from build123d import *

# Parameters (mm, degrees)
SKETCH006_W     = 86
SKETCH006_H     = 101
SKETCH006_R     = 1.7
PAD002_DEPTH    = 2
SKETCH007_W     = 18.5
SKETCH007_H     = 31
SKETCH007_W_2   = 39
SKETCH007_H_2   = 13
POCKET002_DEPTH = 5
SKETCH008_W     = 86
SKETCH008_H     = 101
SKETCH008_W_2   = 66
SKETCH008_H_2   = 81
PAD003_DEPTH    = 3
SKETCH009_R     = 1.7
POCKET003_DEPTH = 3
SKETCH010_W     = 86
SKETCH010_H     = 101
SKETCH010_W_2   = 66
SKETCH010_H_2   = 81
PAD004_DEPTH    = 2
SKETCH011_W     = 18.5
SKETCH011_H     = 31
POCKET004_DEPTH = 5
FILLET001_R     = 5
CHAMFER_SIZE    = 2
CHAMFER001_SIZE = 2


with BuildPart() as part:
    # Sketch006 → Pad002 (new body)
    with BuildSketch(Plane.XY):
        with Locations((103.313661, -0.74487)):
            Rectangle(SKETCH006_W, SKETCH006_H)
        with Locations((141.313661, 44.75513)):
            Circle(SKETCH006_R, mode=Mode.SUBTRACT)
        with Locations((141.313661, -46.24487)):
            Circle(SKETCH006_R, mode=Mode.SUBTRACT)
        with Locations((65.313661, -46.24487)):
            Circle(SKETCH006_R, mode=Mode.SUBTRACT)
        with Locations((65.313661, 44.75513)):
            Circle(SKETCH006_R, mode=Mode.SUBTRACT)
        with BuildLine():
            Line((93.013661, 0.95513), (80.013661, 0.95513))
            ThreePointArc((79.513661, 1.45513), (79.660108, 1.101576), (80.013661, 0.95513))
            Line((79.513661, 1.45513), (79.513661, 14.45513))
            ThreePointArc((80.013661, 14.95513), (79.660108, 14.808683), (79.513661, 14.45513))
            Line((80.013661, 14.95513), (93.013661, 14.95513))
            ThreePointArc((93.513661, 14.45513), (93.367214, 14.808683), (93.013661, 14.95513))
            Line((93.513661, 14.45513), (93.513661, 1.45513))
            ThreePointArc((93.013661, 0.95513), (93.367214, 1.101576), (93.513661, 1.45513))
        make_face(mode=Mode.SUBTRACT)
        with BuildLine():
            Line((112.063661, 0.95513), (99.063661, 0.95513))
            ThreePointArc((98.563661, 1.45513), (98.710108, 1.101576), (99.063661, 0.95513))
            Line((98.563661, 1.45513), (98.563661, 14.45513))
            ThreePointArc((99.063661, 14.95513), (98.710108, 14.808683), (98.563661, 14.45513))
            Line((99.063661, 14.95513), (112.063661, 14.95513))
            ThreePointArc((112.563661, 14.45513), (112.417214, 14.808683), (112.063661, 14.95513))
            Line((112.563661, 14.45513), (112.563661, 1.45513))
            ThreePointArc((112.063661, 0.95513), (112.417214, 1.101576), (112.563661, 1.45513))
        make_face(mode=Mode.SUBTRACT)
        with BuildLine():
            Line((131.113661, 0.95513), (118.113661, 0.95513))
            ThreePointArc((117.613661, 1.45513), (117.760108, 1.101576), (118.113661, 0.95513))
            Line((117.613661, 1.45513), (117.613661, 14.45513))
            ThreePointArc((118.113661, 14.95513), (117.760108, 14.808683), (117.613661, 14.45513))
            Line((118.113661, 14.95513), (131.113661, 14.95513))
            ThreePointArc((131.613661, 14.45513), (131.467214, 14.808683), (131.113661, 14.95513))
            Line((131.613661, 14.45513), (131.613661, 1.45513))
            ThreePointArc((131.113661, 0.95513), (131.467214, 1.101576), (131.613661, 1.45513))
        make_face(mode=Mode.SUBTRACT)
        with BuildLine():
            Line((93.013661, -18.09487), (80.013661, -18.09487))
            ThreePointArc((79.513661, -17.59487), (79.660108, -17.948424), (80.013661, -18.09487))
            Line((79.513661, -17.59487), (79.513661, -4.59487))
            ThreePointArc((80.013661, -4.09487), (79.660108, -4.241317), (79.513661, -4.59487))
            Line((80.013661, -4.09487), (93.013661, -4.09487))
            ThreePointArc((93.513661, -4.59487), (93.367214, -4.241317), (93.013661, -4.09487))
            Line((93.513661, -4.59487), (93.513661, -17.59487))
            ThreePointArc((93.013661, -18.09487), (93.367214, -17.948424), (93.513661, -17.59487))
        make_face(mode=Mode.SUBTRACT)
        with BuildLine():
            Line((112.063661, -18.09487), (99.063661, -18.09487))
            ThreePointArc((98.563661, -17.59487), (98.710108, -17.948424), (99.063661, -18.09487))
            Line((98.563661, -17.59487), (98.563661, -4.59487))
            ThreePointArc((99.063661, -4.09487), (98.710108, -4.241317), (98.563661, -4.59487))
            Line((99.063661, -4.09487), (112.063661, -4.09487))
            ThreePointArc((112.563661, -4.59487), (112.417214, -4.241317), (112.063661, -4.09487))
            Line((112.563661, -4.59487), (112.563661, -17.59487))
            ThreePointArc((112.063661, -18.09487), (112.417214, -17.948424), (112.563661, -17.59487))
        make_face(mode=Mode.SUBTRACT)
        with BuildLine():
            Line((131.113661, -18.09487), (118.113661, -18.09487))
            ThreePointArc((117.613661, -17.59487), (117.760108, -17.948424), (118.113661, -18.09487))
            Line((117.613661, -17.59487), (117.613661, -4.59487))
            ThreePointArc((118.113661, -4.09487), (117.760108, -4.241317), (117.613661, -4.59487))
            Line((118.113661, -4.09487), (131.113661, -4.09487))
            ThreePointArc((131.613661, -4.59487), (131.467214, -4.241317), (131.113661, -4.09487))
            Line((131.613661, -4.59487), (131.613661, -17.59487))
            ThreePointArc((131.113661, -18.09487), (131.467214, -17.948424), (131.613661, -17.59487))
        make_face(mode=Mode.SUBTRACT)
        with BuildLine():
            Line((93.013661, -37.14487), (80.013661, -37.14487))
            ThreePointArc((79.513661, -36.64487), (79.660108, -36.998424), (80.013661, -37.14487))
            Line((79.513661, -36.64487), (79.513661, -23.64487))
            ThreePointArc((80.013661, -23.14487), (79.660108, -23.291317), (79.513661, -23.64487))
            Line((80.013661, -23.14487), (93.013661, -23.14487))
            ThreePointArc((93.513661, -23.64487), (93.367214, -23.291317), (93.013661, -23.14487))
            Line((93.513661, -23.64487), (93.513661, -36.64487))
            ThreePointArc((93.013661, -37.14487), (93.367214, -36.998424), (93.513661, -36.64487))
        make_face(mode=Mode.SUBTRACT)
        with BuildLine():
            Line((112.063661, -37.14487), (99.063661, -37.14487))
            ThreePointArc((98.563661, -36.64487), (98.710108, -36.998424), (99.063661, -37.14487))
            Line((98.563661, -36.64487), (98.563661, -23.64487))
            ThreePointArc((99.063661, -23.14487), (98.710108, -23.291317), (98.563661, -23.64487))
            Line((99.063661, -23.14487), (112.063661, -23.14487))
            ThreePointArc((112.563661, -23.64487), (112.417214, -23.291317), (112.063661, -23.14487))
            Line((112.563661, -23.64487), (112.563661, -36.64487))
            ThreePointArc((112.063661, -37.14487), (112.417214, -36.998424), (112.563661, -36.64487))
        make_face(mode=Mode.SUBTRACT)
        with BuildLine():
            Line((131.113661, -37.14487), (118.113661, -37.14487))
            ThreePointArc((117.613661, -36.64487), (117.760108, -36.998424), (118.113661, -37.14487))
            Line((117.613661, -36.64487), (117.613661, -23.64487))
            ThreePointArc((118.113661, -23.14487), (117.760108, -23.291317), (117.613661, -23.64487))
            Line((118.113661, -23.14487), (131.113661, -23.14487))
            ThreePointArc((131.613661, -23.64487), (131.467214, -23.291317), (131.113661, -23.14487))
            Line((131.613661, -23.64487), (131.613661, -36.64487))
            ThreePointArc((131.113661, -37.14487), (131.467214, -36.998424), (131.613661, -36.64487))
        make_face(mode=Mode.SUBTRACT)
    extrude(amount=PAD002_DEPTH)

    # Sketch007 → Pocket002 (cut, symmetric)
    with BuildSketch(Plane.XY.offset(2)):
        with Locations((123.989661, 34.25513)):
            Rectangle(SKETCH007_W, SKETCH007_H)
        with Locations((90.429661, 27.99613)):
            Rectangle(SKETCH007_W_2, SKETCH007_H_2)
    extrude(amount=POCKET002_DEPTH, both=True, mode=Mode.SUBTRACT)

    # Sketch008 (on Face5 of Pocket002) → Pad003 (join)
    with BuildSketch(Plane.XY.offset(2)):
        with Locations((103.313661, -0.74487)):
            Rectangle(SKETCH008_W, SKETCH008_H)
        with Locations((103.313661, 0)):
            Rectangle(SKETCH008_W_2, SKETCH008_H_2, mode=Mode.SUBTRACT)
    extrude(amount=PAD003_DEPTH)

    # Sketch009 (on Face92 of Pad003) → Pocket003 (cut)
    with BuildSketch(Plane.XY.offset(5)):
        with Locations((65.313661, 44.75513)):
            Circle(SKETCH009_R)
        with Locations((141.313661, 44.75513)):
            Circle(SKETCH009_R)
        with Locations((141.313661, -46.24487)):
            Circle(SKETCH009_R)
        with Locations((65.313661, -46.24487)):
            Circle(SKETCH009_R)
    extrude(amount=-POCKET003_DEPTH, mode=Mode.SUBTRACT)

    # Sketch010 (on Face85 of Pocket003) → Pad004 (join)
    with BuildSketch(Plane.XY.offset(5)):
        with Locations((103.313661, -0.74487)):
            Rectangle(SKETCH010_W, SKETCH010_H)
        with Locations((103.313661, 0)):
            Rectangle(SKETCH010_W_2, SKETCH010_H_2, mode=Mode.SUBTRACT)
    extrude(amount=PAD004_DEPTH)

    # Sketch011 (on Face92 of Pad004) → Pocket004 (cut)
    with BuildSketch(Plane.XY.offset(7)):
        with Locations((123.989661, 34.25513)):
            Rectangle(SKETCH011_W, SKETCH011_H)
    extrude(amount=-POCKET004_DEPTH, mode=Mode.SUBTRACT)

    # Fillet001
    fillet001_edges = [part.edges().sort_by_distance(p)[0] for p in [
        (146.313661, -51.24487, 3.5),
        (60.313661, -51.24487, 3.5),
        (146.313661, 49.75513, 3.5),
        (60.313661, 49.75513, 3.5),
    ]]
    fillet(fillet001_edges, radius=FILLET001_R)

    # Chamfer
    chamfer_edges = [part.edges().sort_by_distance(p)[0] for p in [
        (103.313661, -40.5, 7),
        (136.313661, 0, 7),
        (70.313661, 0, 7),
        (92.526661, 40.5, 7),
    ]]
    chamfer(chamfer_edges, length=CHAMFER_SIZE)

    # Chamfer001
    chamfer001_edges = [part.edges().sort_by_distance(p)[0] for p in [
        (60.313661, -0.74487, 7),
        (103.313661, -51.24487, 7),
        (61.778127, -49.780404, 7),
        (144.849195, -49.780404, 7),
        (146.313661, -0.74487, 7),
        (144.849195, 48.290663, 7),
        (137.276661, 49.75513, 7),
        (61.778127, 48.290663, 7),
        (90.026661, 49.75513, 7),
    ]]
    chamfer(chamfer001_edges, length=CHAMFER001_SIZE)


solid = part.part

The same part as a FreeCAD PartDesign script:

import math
import FreeCAD as App
import Part
import Sketcher
Q = App.Units.Quantity


def edges_at(feature, points):
    """Names of the edges that pass closest to the given points."""
    edges = feature.Shape.Edges
    near = lambda p: min(range(len(edges)), key=lambda i: edges[i].distToShape(Part.Vertex(*p))[0])
    return sorted({f"Edge{near(p) + 1}" for p in points})

doc = App.newDocument("Part")
body = doc.addObject("PartDesign::Body", "Body")

# Sketch on XY plane
sketch1 = doc.addObject("Sketcher::SketchObject", "Sketch")
body.addObject(sketch1)
sketch1.AttachmentSupport = (doc.XY_Plane, [""])
sketch1.MapMode = "FlatFace"
sketch1.addGeometry([
    Part.LineSegment(App.Vector(60.31, 49.76, 0), App.Vector(60.31, -51.24, 0)),  # 0
    Part.LineSegment(App.Vector(60.31, -51.24, 0), App.Vector(146.31, -51.24, 0)),  # 1
    Part.LineSegment(App.Vector(146.31, -51.24, 0), App.Vector(146.31, 49.76, 0)),  # 2
    Part.LineSegment(App.Vector(146.31, 49.76, 0), App.Vector(60.31, 49.76, 0)),  # 3
    Part.Circle(App.Vector(65.31, -46.24, 0), App.Vector(0, 0, 1), 1.7),  # 4
    Part.ArcOfCircle(Part.Circle(App.Vector(93.01, -36.64, 0), App.Vector(0, 0, 1), 0.5), math.radians(-90), math.radians(0)),  # 5
    Part.LineSegment(App.Vector(93.01, -37.14, 0), App.Vector(80.01, -37.14, 0)),  # 6
    Part.ArcOfCircle(Part.Circle(App.Vector(80.01, -36.64, 0), App.Vector(0, 0, 1), 0.5), math.radians(180), math.radians(270)),  # 7
    Part.LineSegment(App.Vector(79.51, -36.64, 0), App.Vector(79.51, -23.64, 0)),  # 8
    Part.ArcOfCircle(Part.Circle(App.Vector(80.01, -23.64, 0), App.Vector(0, 0, 1), 0.5), math.radians(90), math.radians(180)),  # 9
    Part.LineSegment(App.Vector(80.01, -23.14, 0), App.Vector(93.01, -23.14, 0)),  # 10
    Part.ArcOfCircle(Part.Circle(App.Vector(93.01, -23.64, 0), App.Vector(0, 0, 1), 0.5), math.radians(0), math.radians(90)),  # 11
    Part.LineSegment(App.Vector(93.51, -23.64, 0), App.Vector(93.51, -36.64, 0)),  # 12
    Part.ArcOfCircle(Part.Circle(App.Vector(93.01, -17.59, 0), App.Vector(0, 0, 1), 0.5), math.radians(-90), math.radians(0)),  # 13
    Part.LineSegment(App.Vector(93.01, -18.09, 0), App.Vector(80.01, -18.09, 0)),  # 14
    Part.ArcOfCircle(Part.Circle(App.Vector(80.01, -17.59, 0), App.Vector(0, 0, 1), 0.5), math.radians(180), math.radians(270)),  # 15
    Part.LineSegment(App.Vector(79.51, -17.59, 0), App.Vector(79.51, -4.59, 0)),  # 16
    Part.ArcOfCircle(Part.Circle(App.Vector(80.01, -4.59, 0), App.Vector(0, 0, 1), 0.5), math.radians(90), math.radians(180)),  # 17
    Part.LineSegment(App.Vector(80.01, -4.09, 0), App.Vector(93.01, -4.09, 0)),  # 18
    Part.ArcOfCircle(Part.Circle(App.Vector(93.01, -4.59, 0), App.Vector(0, 0, 1), 0.5), math.radians(0), math.radians(90)),  # 19
    Part.LineSegment(App.Vector(93.51, -4.59, 0), App.Vector(93.51, -17.59, 0)),  # 20
    Part.ArcOfCircle(Part.Circle(App.Vector(112.06, -36.64, 0), App.Vector(0, 0, 1), 0.5), math.radians(-90), math.radians(0)),  # 21
    Part.LineSegment(App.Vector(112.06, -37.14, 0), App.Vector(99.06, -37.14, 0)),  # 22
    Part.ArcOfCircle(Part.Circle(App.Vector(99.06, -36.64, 0), App.Vector(0, 0, 1), 0.5), math.radians(180), math.radians(270)),  # 23
    Part.LineSegment(App.Vector(98.56, -36.64, 0), App.Vector(98.56, -23.64, 0)),  # 24
    Part.ArcOfCircle(Part.Circle(App.Vector(99.06, -23.64, 0), App.Vector(0, 0, 1), 0.5), math.radians(90), math.radians(180)),  # 25
    Part.LineSegment(App.Vector(99.06, -23.14, 0), App.Vector(112.06, -23.14, 0)),  # 26
    Part.ArcOfCircle(Part.Circle(App.Vector(112.06, -23.64, 0), App.Vector(0, 0, 1), 0.5), math.radians(0), math.radians(90)),  # 27
    Part.LineSegment(App.Vector(112.56, -23.64, 0), App.Vector(112.56, -36.64, 0)),  # 28
    Part.Circle(App.Vector(141.31, -46.24, 0), App.Vector(0, 0, 1), 1.7),  # 29
    Part.ArcOfCircle(Part.Circle(App.Vector(131.11, -36.64, 0), App.Vector(0, 0, 1), 0.5), math.radians(-90), math.radians(0)),  # 30
    Part.LineSegment(App.Vector(131.11, -37.14, 0), App.Vector(118.11, -37.14, 0)),  # 31
    Part.ArcOfCircle(Part.Circle(App.Vector(118.11, -36.64, 0), App.Vector(0, 0, 1), 0.5), math.radians(180), math.radians(270)),  # 32
    Part.LineSegment(App.Vector(117.61, -36.64, 0), App.Vector(117.61, -23.64, 0)),  # 33
    Part.ArcOfCircle(Part.Circle(App.Vector(118.11, -23.64, 0), App.Vector(0, 0, 1), 0.5), math.radians(90), math.radians(180)),  # 34
    Part.LineSegment(App.Vector(118.11, -23.14, 0), App.Vector(131.11, -23.14, 0)),  # 35
    Part.ArcOfCircle(Part.Circle(App.Vector(131.11, -23.64, 0), App.Vector(0, 0, 1), 0.5), math.radians(0), math.radians(90)),  # 36
    Part.LineSegment(App.Vector(131.61, -23.64, 0), App.Vector(131.61, -36.64, 0)),  # 37
    Part.ArcOfCircle(Part.Circle(App.Vector(112.06, -17.59, 0), App.Vector(0, 0, 1), 0.5), math.radians(-90), math.radians(0)),  # 38
    Part.LineSegment(App.Vector(112.06, -18.09, 0), App.Vector(99.06, -18.09, 0)),  # 39
    Part.ArcOfCircle(Part.Circle(App.Vector(99.06, -17.59, 0), App.Vector(0, 0, 1), 0.5), math.radians(180), math.radians(270)),  # 40
    Part.LineSegment(App.Vector(98.56, -17.59, 0), App.Vector(98.56, -4.59, 0)),  # 41
    Part.ArcOfCircle(Part.Circle(App.Vector(99.06, -4.59, 0), App.Vector(0, 0, 1), 0.5), math.radians(90), math.radians(180)),  # 42
    Part.LineSegment(App.Vector(99.06, -4.09, 0), App.Vector(112.06, -4.09, 0)),  # 43
    Part.ArcOfCircle(Part.Circle(App.Vector(112.06, -4.59, 0), App.Vector(0, 0, 1), 0.5), math.radians(0), math.radians(90)),  # 44
    Part.LineSegment(App.Vector(112.56, -4.59, 0), App.Vector(112.56, -17.59, 0)),  # 45
    Part.ArcOfCircle(Part.Circle(App.Vector(131.11, -17.59, 0), App.Vector(0, 0, 1), 0.5), math.radians(-90), math.radians(0)),  # 46
    Part.LineSegment(App.Vector(131.11, -18.09, 0), App.Vector(118.11, -18.09, 0)),  # 47
    Part.ArcOfCircle(Part.Circle(App.Vector(118.11, -17.59, 0), App.Vector(0, 0, 1), 0.5), math.radians(180), math.radians(270)),  # 48
    Part.LineSegment(App.Vector(117.61, -17.59, 0), App.Vector(117.61, -4.59, 0)),  # 49
    Part.ArcOfCircle(Part.Circle(App.Vector(118.11, -4.59, 0), App.Vector(0, 0, 1), 0.5), math.radians(90), math.radians(180)),  # 50
    Part.LineSegment(App.Vector(118.11, -4.09, 0), App.Vector(131.11, -4.09, 0)),  # 51
    Part.ArcOfCircle(Part.Circle(App.Vector(131.11, -4.59, 0), App.Vector(0, 0, 1), 0.5), math.radians(0), math.radians(90)),  # 52
    Part.LineSegment(App.Vector(131.61, -4.59, 0), App.Vector(131.61, -17.59, 0)),  # 53
    Part.ArcOfCircle(Part.Circle(App.Vector(93.01, 1.46, 0), App.Vector(0, 0, 1), 0.5), math.radians(-90), math.radians(0)),  # 54
    Part.LineSegment(App.Vector(93.01, 0.96, 0), App.Vector(80.01, 0.96, 0)),  # 55
    Part.ArcOfCircle(Part.Circle(App.Vector(80.01, 1.46, 0), App.Vector(0, 0, 1), 0.5), math.radians(180), math.radians(270)),  # 56
    Part.LineSegment(App.Vector(79.51, 1.46, 0), App.Vector(79.51, 14.46, 0)),  # 57
    Part.ArcOfCircle(Part.Circle(App.Vector(80.01, 14.46, 0), App.Vector(0, 0, 1), 0.5), math.radians(90), math.radians(180)),  # 58
    Part.LineSegment(App.Vector(80.01, 14.96, 0), App.Vector(93.01, 14.96, 0)),  # 59
    Part.ArcOfCircle(Part.Circle(App.Vector(93.01, 14.46, 0), App.Vector(0, 0, 1), 0.5), math.radians(0), math.radians(90)),  # 60
    Part.LineSegment(App.Vector(93.51, 14.46, 0), App.Vector(93.51, 1.46, 0)),  # 61
    Part.Circle(App.Vector(65.31, 44.76, 0), App.Vector(0, 0, 1), 1.7),  # 62
    Part.ArcOfCircle(Part.Circle(App.Vector(112.06, 1.46, 0), App.Vector(0, 0, 1), 0.5), math.radians(-90), math.radians(0)),  # 63
    Part.LineSegment(App.Vector(112.06, 0.96, 0), App.Vector(99.06, 0.96, 0)),  # 64
    Part.ArcOfCircle(Part.Circle(App.Vector(99.06, 1.46, 0), App.Vector(0, 0, 1), 0.5), math.radians(180), math.radians(270)),  # 65
    Part.LineSegment(App.Vector(98.56, 1.46, 0), App.Vector(98.56, 14.46, 0)),  # 66
    Part.ArcOfCircle(Part.Circle(App.Vector(99.06, 14.46, 0), App.Vector(0, 0, 1), 0.5), math.radians(90), math.radians(180)),  # 67
    Part.LineSegment(App.Vector(99.06, 14.96, 0), App.Vector(112.06, 14.96, 0)),  # 68
    Part.ArcOfCircle(Part.Circle(App.Vector(112.06, 14.46, 0), App.Vector(0, 0, 1), 0.5), math.radians(0), math.radians(90)),  # 69
    Part.LineSegment(App.Vector(112.56, 14.46, 0), App.Vector(112.56, 1.46, 0)),  # 70
    Part.ArcOfCircle(Part.Circle(App.Vector(131.11, 1.46, 0), App.Vector(0, 0, 1), 0.5), math.radians(-90), math.radians(0)),  # 71
    Part.LineSegment(App.Vector(131.11, 0.96, 0), App.Vector(118.11, 0.96, 0)),  # 72
    Part.ArcOfCircle(Part.Circle(App.Vector(118.11, 1.46, 0), App.Vector(0, 0, 1), 0.5), math.radians(180), math.radians(270)),  # 73
    Part.LineSegment(App.Vector(117.61, 1.46, 0), App.Vector(117.61, 14.46, 0)),  # 74
    Part.ArcOfCircle(Part.Circle(App.Vector(118.11, 14.46, 0), App.Vector(0, 0, 1), 0.5), math.radians(90), math.radians(180)),  # 75
    Part.LineSegment(App.Vector(118.11, 14.96, 0), App.Vector(131.11, 14.96, 0)),  # 76
    Part.ArcOfCircle(Part.Circle(App.Vector(131.11, 14.46, 0), App.Vector(0, 0, 1), 0.5), math.radians(0), math.radians(90)),  # 77
    Part.LineSegment(App.Vector(131.61, 14.46, 0), App.Vector(131.61, 1.46, 0)),  # 78
    Part.Circle(App.Vector(141.31, 44.76, 0), App.Vector(0, 0, 1), 1.7),  # 79
], False)
sketch1.addConstraint([
    Sketcher.Constraint("Coincident", 0, 2, 1, 1),
    Sketcher.Constraint("Coincident", 1, 2, 2, 1),
    Sketcher.Constraint("Coincident", 2, 2, 3, 1),
    Sketcher.Constraint("Coincident", 3, 2, 0, 1),
    Sketcher.Constraint("Tangent", 5, 1, 6, 1),
    Sketcher.Constraint("Tangent", 6, 2, 7, 2),
    Sketcher.Constraint("Tangent", 7, 1, 8, 1),
    Sketcher.Constraint("Coincident", 8, 2, 9, 2),
    Sketcher.Constraint("Coincident", 9, 1, 10, 1),
    Sketcher.Constraint("Coincident", 10, 2, 11, 2),
    Sketcher.Constraint("Coincident", 11, 1, 12, 1),
    Sketcher.Constraint("Tangent", 12, 2, 5, 2),
    Sketcher.Constraint("Tangent", 13, 1, 14, 1),
    Sketcher.Constraint("Tangent", 14, 2, 15, 2),
    Sketcher.Constraint("Tangent", 15, 1, 16, 1),
    Sketcher.Constraint("Coincident", 16, 2, 17, 2),
    Sketcher.Constraint("Coincident", 17, 1, 18, 1),
    Sketcher.Constraint("Coincident", 18, 2, 19, 2),
    Sketcher.Constraint("Coincident", 19, 1, 20, 1),
    Sketcher.Constraint("Tangent", 20, 2, 13, 2),
    Sketcher.Constraint("Tangent", 21, 1, 22, 1),
    Sketcher.Constraint("Tangent", 22, 2, 23, 2),
    Sketcher.Constraint("Tangent", 23, 1, 24, 1),
    Sketcher.Constraint("Coincident", 24, 2, 25, 2),
    Sketcher.Constraint("Coincident", 25, 1, 26, 1),
    Sketcher.Constraint("Coincident", 26, 2, 27, 2),
    Sketcher.Constraint("Coincident", 27, 1, 28, 1),
    Sketcher.Constraint("Tangent", 28, 2, 21, 2),
    Sketcher.Constraint("Tangent", 30, 1, 31, 1),
    Sketcher.Constraint("Tangent", 31, 2, 32, 2),
    Sketcher.Constraint("Tangent", 32, 1, 33, 1),
    Sketcher.Constraint("Coincident", 33, 2, 34, 2),
    Sketcher.Constraint("Coincident", 34, 1, 35, 1),
    Sketcher.Constraint("Coincident", 35, 2, 36, 2),
    Sketcher.Constraint("Coincident", 36, 1, 37, 1),
    Sketcher.Constraint("Tangent", 37, 2, 30, 2),
    Sketcher.Constraint("Tangent", 38, 1, 39, 1),
    Sketcher.Constraint("Tangent", 39, 2, 40, 2),
    Sketcher.Constraint("Tangent", 40, 1, 41, 1),
    Sketcher.Constraint("Coincident", 41, 2, 42, 2),
    Sketcher.Constraint("Coincident", 42, 1, 43, 1),
    Sketcher.Constraint("Coincident", 43, 2, 44, 2),
    Sketcher.Constraint("Coincident", 44, 1, 45, 1),
    Sketcher.Constraint("Tangent", 45, 2, 38, 2),
    Sketcher.Constraint("Tangent", 46, 1, 47, 1),
    Sketcher.Constraint("Tangent", 47, 2, 48, 2),
    Sketcher.Constraint("Tangent", 48, 1, 49, 1),
    Sketcher.Constraint("Coincident", 49, 2, 50, 2),
    Sketcher.Constraint("Coincident", 50, 1, 51, 1),
    Sketcher.Constraint("Coincident", 51, 2, 52, 2),
    Sketcher.Constraint("Coincident", 52, 1, 53, 1),
    Sketcher.Constraint("Tangent", 53, 2, 46, 2),
    Sketcher.Constraint("Tangent", 54, 1, 55, 1),
    Sketcher.Constraint("Tangent", 55, 2, 56, 2),
    Sketcher.Constraint("Tangent", 56, 1, 57, 1),
    Sketcher.Constraint("Coincident", 57, 2, 58, 2),
    Sketcher.Constraint("Coincident", 58, 1, 59, 1),
    Sketcher.Constraint("Coincident", 59, 2, 60, 2),
    Sketcher.Constraint("Coincident", 60, 1, 61, 1),
    Sketcher.Constraint("Tangent", 61, 2, 54, 2),
    Sketcher.Constraint("Tangent", 63, 1, 64, 1),
    Sketcher.Constraint("Tangent", 64, 2, 65, 2),
    Sketcher.Constraint("Tangent", 65, 1, 66, 1),
    Sketcher.Constraint("Coincident", 66, 2, 67, 2),
    Sketcher.Constraint("Coincident", 67, 1, 68, 1),
    Sketcher.Constraint("Coincident", 68, 2, 69, 2),
    Sketcher.Constraint("Coincident", 69, 1, 70, 1),
    Sketcher.Constraint("Tangent", 70, 2, 63, 2),
    Sketcher.Constraint("Tangent", 71, 1, 72, 1),
    Sketcher.Constraint("Tangent", 72, 2, 73, 2),
    Sketcher.Constraint("Tangent", 73, 1, 74, 1),
    Sketcher.Constraint("Coincident", 74, 2, 75, 2),
    Sketcher.Constraint("Coincident", 75, 1, 76, 1),
    Sketcher.Constraint("Coincident", 76, 2, 77, 2),
    Sketcher.Constraint("Coincident", 77, 1, 78, 1),
    Sketcher.Constraint("Tangent", 78, 2, 71, 2),
    Sketcher.Constraint("Vertical", 0),
    Sketcher.Constraint("Horizontal", 1),
    Sketcher.Constraint("Vertical", 2),
    Sketcher.Constraint("Horizontal", 3),
    Sketcher.Constraint("Horizontal", 6),
    Sketcher.Constraint("Vertical", 8),
    Sketcher.Constraint("Horizontal", 10),
    Sketcher.Constraint("Vertical", 12),
    Sketcher.Constraint("Horizontal", 14),
    Sketcher.Constraint("Vertical", 16),
    Sketcher.Constraint("Horizontal", 18),
    Sketcher.Constraint("Vertical", 20),
    Sketcher.Constraint("Horizontal", 22),
    Sketcher.Constraint("Vertical", 24),
    Sketcher.Constraint("Horizontal", 26),
    Sketcher.Constraint("Vertical", 28),
    Sketcher.Constraint("Horizontal", 31),
    Sketcher.Constraint("Vertical", 33),
    Sketcher.Constraint("Horizontal", 35),
    Sketcher.Constraint("Vertical", 37),
    Sketcher.Constraint("Horizontal", 39),
    Sketcher.Constraint("Vertical", 41),
    Sketcher.Constraint("Horizontal", 43),
    Sketcher.Constraint("Vertical", 45),
    Sketcher.Constraint("Horizontal", 47),
    Sketcher.Constraint("Vertical", 49),
    Sketcher.Constraint("Horizontal", 51),
    Sketcher.Constraint("Vertical", 53),
    Sketcher.Constraint("Horizontal", 55),
    Sketcher.Constraint("Vertical", 57),
    Sketcher.Constraint("Horizontal", 59),
    Sketcher.Constraint("Vertical", 61),
    Sketcher.Constraint("Horizontal", 64),
    Sketcher.Constraint("Vertical", 66),
    Sketcher.Constraint("Horizontal", 68),
    Sketcher.Constraint("Vertical", 70),
    Sketcher.Constraint("Horizontal", 72),
    Sketcher.Constraint("Vertical", 74),
    Sketcher.Constraint("Horizontal", 76),
    Sketcher.Constraint("Vertical", 78),
    Sketcher.Constraint("Equal", 5, 7),
    Sketcher.Constraint("Equal", 7, 9),
    Sketcher.Constraint("Equal", 9, 11),
    Sketcher.Constraint("Equal", 11, 13),
    Sketcher.Constraint("Equal", 13, 15),
    Sketcher.Constraint("Equal", 15, 17),
    Sketcher.Constraint("Equal", 17, 19),
    Sketcher.Constraint("Equal", 19, 21),
    Sketcher.Constraint("Equal", 21, 23),
    Sketcher.Constraint("Equal", 23, 25),
    Sketcher.Constraint("Equal", 25, 27),
    Sketcher.Constraint("Equal", 4, 29),
    Sketcher.Constraint("Equal", 27, 30),
    Sketcher.Constraint("Equal", 30, 32),
    Sketcher.Constraint("Equal", 32, 34),
    Sketcher.Constraint("Equal", 34, 36),
    Sketcher.Constraint("Equal", 36, 38),
    Sketcher.Constraint("Equal", 38, 40),
    Sketcher.Constraint("Equal", 40, 42),
    Sketcher.Constraint("Equal", 42, 44),
    Sketcher.Constraint("Equal", 44, 46),
    Sketcher.Constraint("Equal", 46, 48),
    Sketcher.Constraint("Equal", 48, 50),
    Sketcher.Constraint("Equal", 50, 52),
    Sketcher.Constraint("Equal", 52, 54),
    Sketcher.Constraint("Equal", 54, 56),
    Sketcher.Constraint("Equal", 56, 58),
    Sketcher.Constraint("Equal", 58, 60),
    Sketcher.Constraint("Equal", 29, 62),
    Sketcher.Constraint("Equal", 60, 63),
    Sketcher.Constraint("Equal", 63, 65),
    Sketcher.Constraint("Equal", 65, 67),
    Sketcher.Constraint("Equal", 67, 69),
    Sketcher.Constraint("Equal", 69, 71),
    Sketcher.Constraint("Equal", 71, 73),
    Sketcher.Constraint("Equal", 73, 75),
    Sketcher.Constraint("Equal", 75, 77),
    Sketcher.Constraint("Equal", 62, 79),
    Sketcher.Constraint("Horizontal", 7, 3, 21, 3),
    Sketcher.Constraint("Horizontal", 11, 3, 25, 3),
    Sketcher.Constraint("Horizontal", 4, 3, 29, 3),
    Sketcher.Constraint("Horizontal", 23, 3, 30, 3),
    Sketcher.Constraint("Horizontal", 27, 3, 34, 3),
    Sketcher.Constraint("Horizontal", 15, 3, 38, 3),
    Sketcher.Constraint("Horizontal", 19, 3, 42, 3),
    Sketcher.Constraint("Horizontal", 40, 3, 46, 3),
    Sketcher.Constraint("Horizontal", 44, 3, 50, 3),
    Sketcher.Constraint("Horizontal", 56, 3, 63, 3),
    Sketcher.Constraint("Horizontal", 60, 3, 67, 3),
    Sketcher.Constraint("Horizontal", 65, 3, 71, 3),
    Sketcher.Constraint("Horizontal", 69, 3, 75, 3),
    Sketcher.Constraint("Horizontal", 62, 3, 79, 3),
    Sketcher.Constraint("Horizontal", 36, 3, 8, 2),
    Sketcher.Constraint("Horizontal", 8, 2, 11, 1),
    Sketcher.Constraint("Horizontal", 52, 3, 16, 2),
    Sketcher.Constraint("Horizontal", 16, 2, 19, 1),
    Sketcher.Constraint("Horizontal", 11, 1, 24, 2),
    Sketcher.Constraint("Horizontal", 24, 2, 27, 1),
    Sketcher.Constraint("Horizontal", 27, 1, 33, 2),
    Sketcher.Constraint("Horizontal", 33, 2, 36, 1),
    Sketcher.Constraint("Horizontal", 19, 1, 41, 2),
    Sketcher.Constraint("Horizontal", 41, 2, 44, 1),
    Sketcher.Constraint("Horizontal", 44, 1, 49, 2),
    Sketcher.Constraint("Horizontal", 49, 2, 52, 1),
    Sketcher.Constraint("Horizontal", 77, 3, 57, 2),
    Sketcher.Constraint("Horizontal", 57, 2, 60, 1),
    Sketcher.Constraint("Horizontal", 60, 1, 66, 2),
    Sketcher.Constraint("Horizontal", 66, 2, 69, 1),
    Sketcher.Constraint("Horizontal", 69, 1, 74, 2),
    Sketcher.Constraint("Horizontal", 74, 2, 77, 1),
    Sketcher.Constraint("Vertical", 11, 3, 13, 3),
    Sketcher.Constraint("Vertical", 9, 3, 15, 3),
    Sketcher.Constraint("Vertical", 27, 3, 38, 3),
    Sketcher.Constraint("Vertical", 25, 3, 40, 3),
    Sketcher.Constraint("Vertical", 36, 3, 46, 3),
    Sketcher.Constraint("Vertical", 34, 3, 48, 3),
    Sketcher.Constraint("Vertical", 19, 3, 54, 3),
    Sketcher.Constraint("Vertical", 17, 3, 56, 3),
    Sketcher.Constraint("Vertical", 4, 3, 62, 3),
    Sketcher.Constraint("Vertical", 44, 3, 63, 3),
    Sketcher.Constraint("Vertical", 42, 3, 65, 3),
    Sketcher.Constraint("Vertical", 52, 3, 71, 3),
    Sketcher.Constraint("Vertical", 50, 3, 73, 3),
    Sketcher.Constraint("Vertical", 29, 3, 79, 3),
    Sketcher.Constraint("Vertical", 6, 2, 9, 1),
    Sketcher.Constraint("Vertical", 5, 1, 10, 2),
    Sketcher.Constraint("Vertical", 14, 2, 17, 1),
    Sketcher.Constraint("Vertical", 13, 1, 18, 2),
    Sketcher.Constraint("Vertical", 22, 2, 25, 1),
    Sketcher.Constraint("Vertical", 21, 1, 26, 2),
    Sketcher.Constraint("Vertical", 31, 2, 34, 1),
    Sketcher.Constraint("Vertical", 30, 1, 35, 2),
    Sketcher.Constraint("Vertical", 39, 2, 42, 1),
    Sketcher.Constraint("Vertical", 38, 1, 43, 2),
    Sketcher.Constraint("Vertical", 47, 2, 50, 1),
    Sketcher.Constraint("Vertical", 46, 1, 51, 2),
    Sketcher.Constraint("Vertical", 55, 2, 58, 1),
    Sketcher.Constraint("Vertical", 54, 1, 59, 2),
    Sketcher.Constraint("Vertical", 64, 2, 67, 1),
    Sketcher.Constraint("Vertical", 63, 1, 68, 2),
    Sketcher.Constraint("Vertical", 72, 2, 75, 1),
    Sketcher.Constraint("Vertical", 71, 1, 76, 2),
    Sketcher.Constraint("Equal", 18, 22),
    Sketcher.Constraint("Equal", 26, 31),
    Sketcher.Constraint("Equal", 76, 8),
    Sketcher.Constraint("Equal", 12, 16),
    Sketcher.Constraint("Equal", 53, 57),
    Sketcher.Constraint("Diameter", 4, Q("3.4 mm")),
    Sketcher.Constraint("Radius", 5, Q("0.5 mm")),
    Sketcher.Constraint("DistanceX", 1, 1, 1, 2, Q("86 mm")),
    Sketcher.Constraint("DistanceX", 6, 2, 6, 1, Q("13 mm")),
    Sketcher.Constraint("DistanceY", 0, 2, 0, 1, Q("101 mm")),
    Sketcher.Constraint("DistanceX", -1, 1, 4, 3, Q("65.313661 mm")),
    Sketcher.Constraint("DistanceY", 4, 3, -1, 1, Q("46.24487 mm")),
    Sketcher.Constraint("DistanceX", -1, 1, 5, 3, Q("93.013661 mm")),
    Sketcher.Constraint("DistanceY", 5, 3, -1, 1, Q("36.64487 mm")),
    Sketcher.Constraint("DistanceY", 13, 3, -1, 1, Q("17.59487 mm")),
    Sketcher.Constraint("DistanceX", -1, 1, 21, 3, Q("112.063661 mm")),
    Sketcher.Constraint("DistanceX", -1, 1, 29, 3, Q("141.313661 mm")),
    Sketcher.Constraint("DistanceX", -1, 1, 30, 3, Q("131.113661 mm")),
    Sketcher.Constraint("DistanceY", -1, 1, 54, 3, Q("1.45513 mm")),
    Sketcher.Constraint("DistanceY", -1, 1, 62, 3, Q("44.75513 mm")),
    Sketcher.Constraint("DistanceX", -1, 1, 0, 2, Q("60.313661 mm")),
    Sketcher.Constraint("DistanceY", 0, 2, -1, 1, Q("51.24487 mm")),
])
pad1 = doc.addObject("PartDesign::Pad", "Pad")
body.addObject(pad1)
pad1.Profile = sketch1
pad1.Length = 2

# Sketch on XY plane
sketch2 = doc.addObject("Sketcher::SketchObject", "Sketch001")
body.addObject(sketch2)
sketch2.AttachmentSupport = (doc.XY_Plane, [""])
sketch2.MapMode = "FlatFace"
sketch2.AttachmentOffset = App.Placement(App.Vector(0, 0, 2), App.Rotation())
sketch2.addGeometry([
    Part.LineSegment(App.Vector(115, 50, 0), App.Vector(115, 19, 0)),  # 0
    Part.LineSegment(App.Vector(115, 19, 0), App.Vector(133, 19, 0)),  # 1
    Part.LineSegment(App.Vector(133, 19, 0), App.Vector(133, 50, 0)),  # 2
    Part.LineSegment(App.Vector(133, 50, 0), App.Vector(115, 50, 0)),  # 3
    Part.LineSegment(App.Vector(71, 34, 0), App.Vector(71, 21, 0)),  # 4
    Part.LineSegment(App.Vector(71, 21, 0), App.Vector(110, 21, 0)),  # 5
    Part.LineSegment(App.Vector(110, 21, 0), App.Vector(110, 34, 0)),  # 6
    Part.LineSegment(App.Vector(110, 34, 0), App.Vector(71, 34, 0)),  # 7
], False)
sketch2.addConstraint([
    Sketcher.Constraint("Coincident", 0, 2, 1, 1),
    Sketcher.Constraint("Coincident", 1, 2, 2, 1),
    Sketcher.Constraint("Coincident", 2, 2, 3, 1),
    Sketcher.Constraint("Coincident", 3, 2, 0, 1),
    Sketcher.Constraint("Coincident", 4, 2, 5, 1),
    Sketcher.Constraint("Coincident", 5, 2, 6, 1),
    Sketcher.Constraint("Coincident", 6, 2, 7, 1),
    Sketcher.Constraint("Coincident", 7, 2, 4, 1),
    Sketcher.Constraint("Vertical", 0),
    Sketcher.Constraint("Horizontal", 1),
    Sketcher.Constraint("Vertical", 2),
    Sketcher.Constraint("Horizontal", 3),
    Sketcher.Constraint("Vertical", 4),
    Sketcher.Constraint("Horizontal", 5),
    Sketcher.Constraint("Vertical", 6),
    Sketcher.Constraint("Horizontal", 7),
    Sketcher.Constraint("DistanceX", 5, 1, 5, 2, Q("39 mm")),
    Sketcher.Constraint("DistanceY", 0, 2, 0, 1, Q("31 mm")),
    Sketcher.Constraint("DistanceY", 4, 2, 4, 1, Q("13 mm")),
    Sketcher.Constraint("DistanceX", 1, 1, 1, 2, Q("18.5 mm")),
    Sketcher.Constraint("DistanceX", 4, 2, 0, 2, Q("43.81 mm")),
    Sketcher.Constraint("DistanceY", 0, 2, 4, 2, Q("2.741 mm")),
    Sketcher.Constraint("DistanceX", -1, 1, 0, 2, Q("114.739661 mm")),
    Sketcher.Constraint("DistanceY", -1, 1, 0, 2, Q("18.75513 mm")),
])
pocket1 = doc.addObject("PartDesign::Pocket", "Pocket")
body.addObject(pocket1)
pocket1.Profile = sketch2
pocket1.Length = 10
pocket1.Midplane = True

# Sketch on XY plane
sketch3 = doc.addObject("Sketcher::SketchObject", "Sketch002")
body.addObject(sketch3)
sketch3.AttachmentSupport = (doc.XY_Plane, [""])
sketch3.MapMode = "FlatFace"
sketch3.AttachmentOffset = App.Placement(App.Vector(0, 0, 2), App.Rotation())
sketch3.addGeometry([
    Part.LineSegment(App.Vector(60, 50, 0), App.Vector(60, -51, 0)),  # 0
    Part.LineSegment(App.Vector(60, -51, 0), App.Vector(146, -51, 0)),  # 1
    Part.LineSegment(App.Vector(146, -51, 0), App.Vector(146, 50, 0)),  # 2
    Part.LineSegment(App.Vector(146, 50, 0), App.Vector(60, 50, 0)),  # 3
    Part.LineSegment(App.Vector(136, -40, 0), App.Vector(70, -40, 0)),  # 4
    Part.LineSegment(App.Vector(70, -40, 0), App.Vector(70, 40, 0)),  # 5
    Part.LineSegment(App.Vector(70, 40, 0), App.Vector(136, 40, 0)),  # 6
    Part.LineSegment(App.Vector(136, 40, 0), App.Vector(136, -40, 0)),  # 7
], False)
sketch3.addConstraint([
    Sketcher.Constraint("Coincident", 0, 2, 1, 1),
    Sketcher.Constraint("Coincident", 1, 2, 2, 1),
    Sketcher.Constraint("Coincident", 2, 2, 3, 1),
    Sketcher.Constraint("Coincident", 3, 2, 0, 1),
    Sketcher.Constraint("Coincident", 4, 2, 5, 1),
    Sketcher.Constraint("Coincident", 5, 2, 6, 1),
    Sketcher.Constraint("Coincident", 6, 2, 7, 1),
    Sketcher.Constraint("Coincident", 7, 2, 4, 1),
    Sketcher.Constraint("Vertical", 0),
    Sketcher.Constraint("Horizontal", 1),
    Sketcher.Constraint("Vertical", 2),
    Sketcher.Constraint("Horizontal", 3),
    Sketcher.Constraint("Horizontal", 4),
    Sketcher.Constraint("Vertical", 5),
    Sketcher.Constraint("Horizontal", 6),
    Sketcher.Constraint("Vertical", 7),
    Sketcher.Constraint("DistanceX", 1, 1, 1, 2, Q("86 mm")),
    Sketcher.Constraint("DistanceX", 4, 2, 4, 1, Q("66 mm")),
    Sketcher.Constraint("DistanceY", 0, 2, 0, 1, Q("101 mm")),
    Sketcher.Constraint("DistanceY", 5, 1, 5, 2, Q("81 mm")),
    Sketcher.Constraint("DistanceX", 0, 2, 4, 2, Q("10 mm")),
    Sketcher.Constraint("DistanceY", 4, 2, -1, 1, Q("40.5 mm")),
    Sketcher.Constraint("DistanceX", -1, 1, 0, 2, Q("60.313661 mm")),
    Sketcher.Constraint("DistanceY", 0, 2, -1, 1, Q("51.24487 mm")),
])
pad2 = doc.addObject("PartDesign::Pad", "Pad001")
body.addObject(pad2)
pad2.Profile = sketch3
pad2.Length = 3

# Sketch on XY plane
sketch4 = doc.addObject("Sketcher::SketchObject", "Sketch003")
body.addObject(sketch4)
sketch4.AttachmentSupport = (doc.XY_Plane, [""])
sketch4.MapMode = "FlatFace"
sketch4.AttachmentOffset = App.Placement(App.Vector(0, 0, 5), App.Rotation())
sketch4.addGeometry([
    Part.Circle(App.Vector(65.3, 44.8, 0), App.Vector(0, 0, 1), 1.7),
    Part.Circle(App.Vector(141.3, 44.8, 0), App.Vector(0, 0, 1), 1.7),
    Part.Circle(App.Vector(141.3, -46.2, 0), App.Vector(0, 0, 1), 1.7),
    Part.Circle(App.Vector(65.3, -46.2, 0), App.Vector(0, 0, 1), 1.7),
], False)
sketch4.addConstraint([
    Sketcher.Constraint("Equal", 0, 1),
    Sketcher.Constraint("Equal", 1, 2),
    Sketcher.Constraint("Equal", 2, 3),
    Sketcher.Constraint("Horizontal", 0, 3, 1, 3),
    Sketcher.Constraint("Horizontal", 2, 3, 3, 3),
    Sketcher.Constraint("Vertical", 1, 3, 2, 3),
    Sketcher.Constraint("Vertical", 0, 3, 3, 3),
    Sketcher.Constraint("Diameter", 0, Q("3.4 mm")),
    Sketcher.Constraint("DistanceX", 0, 3, 1, 3, Q("76 mm")),
    Sketcher.Constraint("DistanceY", 2, 3, 1, 3, Q("91 mm")),
    Sketcher.Constraint("DistanceX", -1, 1, 0, 3, Q("65.313661 mm")),
    Sketcher.Constraint("DistanceY", -1, 1, 0, 3, Q("44.75513 mm")),
])
pocket2 = doc.addObject("PartDesign::Pocket", "Pocket001")
body.addObject(pocket2)
pocket2.Profile = sketch4
pocket2.Length = 3

# Sketch on XY plane
sketch5 = doc.addObject("Sketcher::SketchObject", "Sketch004")
body.addObject(sketch5)
sketch5.AttachmentSupport = (doc.XY_Plane, [""])
sketch5.MapMode = "FlatFace"
sketch5.AttachmentOffset = App.Placement(App.Vector(0, 0, 5), App.Rotation())
sketch5.addGeometry([
    Part.LineSegment(App.Vector(60, 50, 0), App.Vector(60, -51, 0)),  # 0
    Part.LineSegment(App.Vector(60, -51, 0), App.Vector(146, -51, 0)),  # 1
    Part.LineSegment(App.Vector(146, -51, 0), App.Vector(146, 50, 0)),  # 2
    Part.LineSegment(App.Vector(146, 50, 0), App.Vector(60, 50, 0)),  # 3
    Part.LineSegment(App.Vector(136, -40, 0), App.Vector(70, -40, 0)),  # 4
    Part.LineSegment(App.Vector(70, -40, 0), App.Vector(70, 40, 0)),  # 5
    Part.LineSegment(App.Vector(70, 40, 0), App.Vector(136, 40, 0)),  # 6
    Part.LineSegment(App.Vector(136, 40, 0), App.Vector(136, -40, 0)),  # 7
], False)
sketch5.addConstraint([
    Sketcher.Constraint("Coincident", 0, 2, 1, 1),
    Sketcher.Constraint("Coincident", 1, 2, 2, 1),
    Sketcher.Constraint("Coincident", 2, 2, 3, 1),
    Sketcher.Constraint("Coincident", 3, 2, 0, 1),
    Sketcher.Constraint("Coincident", 4, 2, 5, 1),
    Sketcher.Constraint("Coincident", 5, 2, 6, 1),
    Sketcher.Constraint("Coincident", 6, 2, 7, 1),
    Sketcher.Constraint("Coincident", 7, 2, 4, 1),
    Sketcher.Constraint("Vertical", 0),
    Sketcher.Constraint("Horizontal", 1),
    Sketcher.Constraint("Vertical", 2),
    Sketcher.Constraint("Horizontal", 3),
    Sketcher.Constraint("Horizontal", 4),
    Sketcher.Constraint("Vertical", 5),
    Sketcher.Constraint("Horizontal", 6),
    Sketcher.Constraint("Vertical", 7),
    Sketcher.Constraint("DistanceX", 1, 1, 1, 2, Q("86 mm")),
    Sketcher.Constraint("DistanceX", 4, 2, 4, 1, Q("66 mm")),
    Sketcher.Constraint("DistanceY", 0, 2, 0, 1, Q("101 mm")),
    Sketcher.Constraint("DistanceY", 5, 1, 5, 2, Q("81 mm")),
    Sketcher.Constraint("DistanceX", 0, 2, 4, 2, Q("10 mm")),
    Sketcher.Constraint("DistanceY", 4, 2, -1, 1, Q("40.5 mm")),
    Sketcher.Constraint("DistanceX", -1, 1, 0, 2, Q("60.313661 mm")),
    Sketcher.Constraint("DistanceY", 0, 2, -1, 1, Q("51.24487 mm")),
])
pad3 = doc.addObject("PartDesign::Pad", "Pad002")
body.addObject(pad3)
pad3.Profile = sketch5
pad3.Length = 2

# Sketch on XY plane
sketch6 = doc.addObject("Sketcher::SketchObject", "Sketch005")
body.addObject(sketch6)
sketch6.AttachmentSupport = (doc.XY_Plane, [""])
sketch6.MapMode = "FlatFace"
sketch6.AttachmentOffset = App.Placement(App.Vector(0, 0, 7), App.Rotation())
sketch6.addGeometry([
    Part.LineSegment(App.Vector(115, 50, 0), App.Vector(115, 19, 0)),
    Part.LineSegment(App.Vector(115, 19, 0), App.Vector(133, 19, 0)),
    Part.LineSegment(App.Vector(133, 19, 0), App.Vector(133, 50, 0)),
    Part.LineSegment(App.Vector(133, 50, 0), App.Vector(115, 50, 0)),
], False)
sketch6.addConstraint([
    Sketcher.Constraint("Coincident", 0, 2, 1, 1),
    Sketcher.Constraint("Coincident", 1, 2, 2, 1),
    Sketcher.Constraint("Coincident", 2, 2, 3, 1),
    Sketcher.Constraint("Coincident", 3, 2, 0, 1),
    Sketcher.Constraint("Vertical", 0),
    Sketcher.Constraint("Horizontal", 1),
    Sketcher.Constraint("Vertical", 2),
    Sketcher.Constraint("Horizontal", 3),
    Sketcher.Constraint("DistanceY", 0, 2, 0, 1, Q("31 mm")),
    Sketcher.Constraint("DistanceX", 1, 1, 1, 2, Q("18.5 mm")),
    Sketcher.Constraint("DistanceX", -1, 1, 0, 2, Q("114.739661 mm")),
    Sketcher.Constraint("DistanceY", -1, 1, 0, 2, Q("18.75513 mm")),
])
pocket3 = doc.addObject("PartDesign::Pocket", "Pocket002")
body.addObject(pocket3)
pocket3.Profile = sketch6
pocket3.Length = 5
doc.recompute()

fillet = doc.addObject("PartDesign::Fillet", "Fillet")
body.addObject(fillet)
fillet.Base = (pocket3, edges_at(pocket3, [
    (146.314, -51.245, 3.5),
    (60.314, -51.245, 3.5),
    (146.314, 49.755, 3.5),
    (60.314, 49.755, 3.5),
]))
fillet.Radius = 5
doc.recompute()

chamfer = doc.addObject("PartDesign::Chamfer", "Chamfer")
body.addObject(chamfer)
chamfer.Base = (fillet, edges_at(fillet, [
    (103.314, -40.5, 7),
    (136.314, 0, 7),
    (70.314, 0, 7),
    (92.527, 40.5, 7),
]))
chamfer.Size = 2
doc.recompute()

chamfer2 = doc.addObject("PartDesign::Chamfer", "Chamfer001")
body.addObject(chamfer2)
chamfer2.Base = (chamfer, edges_at(chamfer, [
    (60.314, -0.745, 7),
    (103.314, -51.245, 7),
    (61.778, -49.78, 7),
    (144.849, -49.78, 7),
    (146.314, -0.745, 7),
    (144.849, 48.291, 7),
    (137.277, 49.755, 7),
    (61.778, 48.291, 7),
    (90.027, 49.755, 7),
]))
chamfer2.Size = 2

doc.recompute()
